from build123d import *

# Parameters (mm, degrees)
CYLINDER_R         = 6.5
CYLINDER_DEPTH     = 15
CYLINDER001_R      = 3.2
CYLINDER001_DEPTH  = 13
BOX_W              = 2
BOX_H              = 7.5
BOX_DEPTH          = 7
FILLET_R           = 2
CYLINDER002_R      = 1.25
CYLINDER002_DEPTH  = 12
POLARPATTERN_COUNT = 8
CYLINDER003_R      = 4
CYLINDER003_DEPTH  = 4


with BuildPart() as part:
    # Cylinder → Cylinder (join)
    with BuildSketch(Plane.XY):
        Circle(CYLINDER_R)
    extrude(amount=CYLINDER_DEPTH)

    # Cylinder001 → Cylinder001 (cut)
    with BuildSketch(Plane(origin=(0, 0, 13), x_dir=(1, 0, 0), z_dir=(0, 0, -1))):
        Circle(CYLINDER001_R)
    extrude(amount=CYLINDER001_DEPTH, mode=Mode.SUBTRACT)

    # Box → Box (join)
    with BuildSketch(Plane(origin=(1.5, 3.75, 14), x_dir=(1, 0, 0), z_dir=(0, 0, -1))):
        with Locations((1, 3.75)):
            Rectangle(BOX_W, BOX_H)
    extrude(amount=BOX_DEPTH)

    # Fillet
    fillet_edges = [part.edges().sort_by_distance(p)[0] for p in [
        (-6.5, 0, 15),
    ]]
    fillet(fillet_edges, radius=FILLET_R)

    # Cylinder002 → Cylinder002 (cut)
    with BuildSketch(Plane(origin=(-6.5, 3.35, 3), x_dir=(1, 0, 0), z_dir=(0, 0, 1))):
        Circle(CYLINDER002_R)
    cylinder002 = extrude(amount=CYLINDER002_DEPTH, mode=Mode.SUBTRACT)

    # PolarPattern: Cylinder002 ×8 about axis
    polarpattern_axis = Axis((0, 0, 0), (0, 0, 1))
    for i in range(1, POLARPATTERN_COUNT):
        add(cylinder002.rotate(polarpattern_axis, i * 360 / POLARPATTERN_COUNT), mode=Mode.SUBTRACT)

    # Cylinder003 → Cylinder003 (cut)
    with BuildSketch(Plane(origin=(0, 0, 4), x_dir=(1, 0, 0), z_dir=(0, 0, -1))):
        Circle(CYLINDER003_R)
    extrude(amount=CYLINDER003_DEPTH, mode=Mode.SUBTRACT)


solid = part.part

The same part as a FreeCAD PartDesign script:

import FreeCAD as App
import Part
import Sketcher
from FreeCAD import Vector


def edges_at(feature, points):
    """Names of the edges that pass closest to the given points."""
    edges = feature.Shape.Edges
    near = lambda p: min(range(len(edges)), key=lambda i: edges[i].distToShape(Part.Vertex(*p))[0])
    return sorted({f"Edge{near(p) + 1}" for p in points})

doc = App.newDocument("Part")
body = doc.addObject("PartDesign::Body", "Body")

sketch1 = body.newObject("Sketcher::SketchObject", "Sketch")
sketch1.AttachmentSupport = (doc.getObject("XY_Plane"), [""])
sketch1.MapMode = "FlatFace"
sketch1.addGeometry(Part.Circle(Vector(0, 0, 0), Vector(0, 0, 1), 6), False)
sketch1.addConstraint([
    Sketcher.Constraint("Coincident", 0, 3, -1, 1),
    Sketcher.Constraint("Diameter", 0, 13.0),
])
pad1 = body.newObject("PartDesign::Pad", "Pad")
pad1.Profile = sketch1
pad1.Length = 15

sketch2 = body.newObject("Sketcher::SketchObject", "Sketch001")
sketch2.AttachmentSupport = (doc.getObject("XY_Plane"), [""])
sketch2.MapMode = "FlatFace"
sketch2.AttachmentOffset = App.Placement(Vector(0, 0, 13), App.Rotation())
sketch2.addGeometry(Part.Circle(Vector(0, 0, 0), Vector(0, 0, 1), 3.2), False)
sketch2.addConstraint([
    Sketcher.Constraint("Coincident", 0, 3, -1, 1),
    Sketcher.Constraint("Diameter", 0, 6.4),
])
pocket1 = body.newObject("PartDesign::Pocket", "Pocket")
pocket1.Profile = sketch2
pocket1.Length = 13

sketch3 = body.newObject("Sketcher::SketchObject", "Sketch002")
sketch3.AttachmentSupport = (doc.getObject("XY_Plane"), [""])
sketch3.MapMode = "FlatFace"
sketch3.AttachmentOffset = App.Placement(Vector(0, 0, 14), App.Rotation())
sketch3.addGeometry([
    Part.LineSegment(Vector(1.5, -3.8, 0), Vector(1.5, 3.8, 0)),
    Part.LineSegment(Vector(1.5, 3.8, 0), Vector(3.5, 3.8, 0)),
    Part.LineSegment(Vector(3.5, 3.8, 0), Vector(3.5, -3.8, 0)),
    Part.LineSegment(Vector(3.5, -3.8, 0), Vector(1.5, -3.8, 0)),
], False)
sketch3.addConstraint([
    Sketcher.Constraint("Coincident", 0, 2, 1, 1),
    Sketcher.Constraint("Coincident", 1, 2, 2, 1),
    Sketcher.Constraint("Coincident", 2, 2, 3, 1),
    Sketcher.Constraint("Coincident", 3, 2, 0, 1),
    Sketcher.Constraint("Vertical", 0),
    Sketcher.Constraint("Horizontal", 1),
    Sketcher.Constraint("Vertical", 2),
    Sketcher.Constraint("Horizontal", 3),
    Sketcher.Constraint("DistanceX", 1, 1, 1, 2, 2.0),
    Sketcher.Constraint("DistanceY", 0, 1, 0, 2, 7.5),
    Sketcher.Constraint("DistanceX", -1, 1, 0, 2, 1.5),
    Sketcher.Constraint("DistanceY", -1, 1, 0, 2, 3.75),
])
pad2 = body.newObject("PartDesign::Pad", "Pad001")
pad2.Profile = sketch3
pad2.Length = 7
pad2.Reversed = True
doc.recompute()

fillet = body.newObject("PartDesign::Fillet", "Fillet")
fillet.Base = (pad2, edges_at(pad2, [(-6.5, 0, 15)]))
fillet.Radius = 2

sketch4 = body.newObject("Sketcher::SketchObject", "Sketch003")
sketch4.AttachmentSupport = (doc.getObject("XY_Plane"), [""])
sketch4.MapMode = "FlatFace"
sketch4.AttachmentOffset = App.Placement(Vector(0, 0, 3), App.Rotation())
sketch4.addGeometry(Part.Circle(Vector(-6.5, 3.4, 0), Vector(0, 0, 1), 1.2), False)
sketch4.addConstraint([
    Sketcher.Constraint("Diameter", 0, 2.5),
    Sketcher.Constraint("DistanceX", 0, 3, -1, 1, 6.5),
    Sketcher.Constraint("DistanceY", -1, 1, 0, 3, 3.35),
])
pocket2 = body.newObject("PartDesign::Pocket", "Pocket001")
pocket2.Profile = sketch4
pocket2.Length = 12
pocket2.Reversed = True
doc.recompute()

polarpattern = body.newObject("PartDesign::PolarPattern", "PolarPattern")
polarpattern.Originals = [pocket2]
polarpattern.Axis = (doc.getObject("Z_Axis"), [""])
polarpattern.Angle = 360
polarpattern.Occurrences = 8
body.Tip = polarpattern

sketch5 = body.newObject("Sketcher::SketchObject", "Sketch004")
sketch5.AttachmentSupport = (doc.getObject("XY_Plane"), [""])
sketch5.MapMode = "FlatFace"
sketch5.AttachmentOffset = App.Placement(Vector(0, 0, 4), App.Rotation())
sketch5.addGeometry(Part.Circle(Vector(0, 0, 0), Vector(0, 0, 1), 4), False)
sketch5.addConstraint([
    Sketcher.Constraint("Coincident", 0, 3, -1, 1),
    Sketcher.Constraint("Diameter", 0, 8.0),
])
pocket3 = body.newObject("PartDesign::Pocket", "Pocket002")
pocket3.Profile = sketch5
pocket3.Length = 4

doc.recompute()
